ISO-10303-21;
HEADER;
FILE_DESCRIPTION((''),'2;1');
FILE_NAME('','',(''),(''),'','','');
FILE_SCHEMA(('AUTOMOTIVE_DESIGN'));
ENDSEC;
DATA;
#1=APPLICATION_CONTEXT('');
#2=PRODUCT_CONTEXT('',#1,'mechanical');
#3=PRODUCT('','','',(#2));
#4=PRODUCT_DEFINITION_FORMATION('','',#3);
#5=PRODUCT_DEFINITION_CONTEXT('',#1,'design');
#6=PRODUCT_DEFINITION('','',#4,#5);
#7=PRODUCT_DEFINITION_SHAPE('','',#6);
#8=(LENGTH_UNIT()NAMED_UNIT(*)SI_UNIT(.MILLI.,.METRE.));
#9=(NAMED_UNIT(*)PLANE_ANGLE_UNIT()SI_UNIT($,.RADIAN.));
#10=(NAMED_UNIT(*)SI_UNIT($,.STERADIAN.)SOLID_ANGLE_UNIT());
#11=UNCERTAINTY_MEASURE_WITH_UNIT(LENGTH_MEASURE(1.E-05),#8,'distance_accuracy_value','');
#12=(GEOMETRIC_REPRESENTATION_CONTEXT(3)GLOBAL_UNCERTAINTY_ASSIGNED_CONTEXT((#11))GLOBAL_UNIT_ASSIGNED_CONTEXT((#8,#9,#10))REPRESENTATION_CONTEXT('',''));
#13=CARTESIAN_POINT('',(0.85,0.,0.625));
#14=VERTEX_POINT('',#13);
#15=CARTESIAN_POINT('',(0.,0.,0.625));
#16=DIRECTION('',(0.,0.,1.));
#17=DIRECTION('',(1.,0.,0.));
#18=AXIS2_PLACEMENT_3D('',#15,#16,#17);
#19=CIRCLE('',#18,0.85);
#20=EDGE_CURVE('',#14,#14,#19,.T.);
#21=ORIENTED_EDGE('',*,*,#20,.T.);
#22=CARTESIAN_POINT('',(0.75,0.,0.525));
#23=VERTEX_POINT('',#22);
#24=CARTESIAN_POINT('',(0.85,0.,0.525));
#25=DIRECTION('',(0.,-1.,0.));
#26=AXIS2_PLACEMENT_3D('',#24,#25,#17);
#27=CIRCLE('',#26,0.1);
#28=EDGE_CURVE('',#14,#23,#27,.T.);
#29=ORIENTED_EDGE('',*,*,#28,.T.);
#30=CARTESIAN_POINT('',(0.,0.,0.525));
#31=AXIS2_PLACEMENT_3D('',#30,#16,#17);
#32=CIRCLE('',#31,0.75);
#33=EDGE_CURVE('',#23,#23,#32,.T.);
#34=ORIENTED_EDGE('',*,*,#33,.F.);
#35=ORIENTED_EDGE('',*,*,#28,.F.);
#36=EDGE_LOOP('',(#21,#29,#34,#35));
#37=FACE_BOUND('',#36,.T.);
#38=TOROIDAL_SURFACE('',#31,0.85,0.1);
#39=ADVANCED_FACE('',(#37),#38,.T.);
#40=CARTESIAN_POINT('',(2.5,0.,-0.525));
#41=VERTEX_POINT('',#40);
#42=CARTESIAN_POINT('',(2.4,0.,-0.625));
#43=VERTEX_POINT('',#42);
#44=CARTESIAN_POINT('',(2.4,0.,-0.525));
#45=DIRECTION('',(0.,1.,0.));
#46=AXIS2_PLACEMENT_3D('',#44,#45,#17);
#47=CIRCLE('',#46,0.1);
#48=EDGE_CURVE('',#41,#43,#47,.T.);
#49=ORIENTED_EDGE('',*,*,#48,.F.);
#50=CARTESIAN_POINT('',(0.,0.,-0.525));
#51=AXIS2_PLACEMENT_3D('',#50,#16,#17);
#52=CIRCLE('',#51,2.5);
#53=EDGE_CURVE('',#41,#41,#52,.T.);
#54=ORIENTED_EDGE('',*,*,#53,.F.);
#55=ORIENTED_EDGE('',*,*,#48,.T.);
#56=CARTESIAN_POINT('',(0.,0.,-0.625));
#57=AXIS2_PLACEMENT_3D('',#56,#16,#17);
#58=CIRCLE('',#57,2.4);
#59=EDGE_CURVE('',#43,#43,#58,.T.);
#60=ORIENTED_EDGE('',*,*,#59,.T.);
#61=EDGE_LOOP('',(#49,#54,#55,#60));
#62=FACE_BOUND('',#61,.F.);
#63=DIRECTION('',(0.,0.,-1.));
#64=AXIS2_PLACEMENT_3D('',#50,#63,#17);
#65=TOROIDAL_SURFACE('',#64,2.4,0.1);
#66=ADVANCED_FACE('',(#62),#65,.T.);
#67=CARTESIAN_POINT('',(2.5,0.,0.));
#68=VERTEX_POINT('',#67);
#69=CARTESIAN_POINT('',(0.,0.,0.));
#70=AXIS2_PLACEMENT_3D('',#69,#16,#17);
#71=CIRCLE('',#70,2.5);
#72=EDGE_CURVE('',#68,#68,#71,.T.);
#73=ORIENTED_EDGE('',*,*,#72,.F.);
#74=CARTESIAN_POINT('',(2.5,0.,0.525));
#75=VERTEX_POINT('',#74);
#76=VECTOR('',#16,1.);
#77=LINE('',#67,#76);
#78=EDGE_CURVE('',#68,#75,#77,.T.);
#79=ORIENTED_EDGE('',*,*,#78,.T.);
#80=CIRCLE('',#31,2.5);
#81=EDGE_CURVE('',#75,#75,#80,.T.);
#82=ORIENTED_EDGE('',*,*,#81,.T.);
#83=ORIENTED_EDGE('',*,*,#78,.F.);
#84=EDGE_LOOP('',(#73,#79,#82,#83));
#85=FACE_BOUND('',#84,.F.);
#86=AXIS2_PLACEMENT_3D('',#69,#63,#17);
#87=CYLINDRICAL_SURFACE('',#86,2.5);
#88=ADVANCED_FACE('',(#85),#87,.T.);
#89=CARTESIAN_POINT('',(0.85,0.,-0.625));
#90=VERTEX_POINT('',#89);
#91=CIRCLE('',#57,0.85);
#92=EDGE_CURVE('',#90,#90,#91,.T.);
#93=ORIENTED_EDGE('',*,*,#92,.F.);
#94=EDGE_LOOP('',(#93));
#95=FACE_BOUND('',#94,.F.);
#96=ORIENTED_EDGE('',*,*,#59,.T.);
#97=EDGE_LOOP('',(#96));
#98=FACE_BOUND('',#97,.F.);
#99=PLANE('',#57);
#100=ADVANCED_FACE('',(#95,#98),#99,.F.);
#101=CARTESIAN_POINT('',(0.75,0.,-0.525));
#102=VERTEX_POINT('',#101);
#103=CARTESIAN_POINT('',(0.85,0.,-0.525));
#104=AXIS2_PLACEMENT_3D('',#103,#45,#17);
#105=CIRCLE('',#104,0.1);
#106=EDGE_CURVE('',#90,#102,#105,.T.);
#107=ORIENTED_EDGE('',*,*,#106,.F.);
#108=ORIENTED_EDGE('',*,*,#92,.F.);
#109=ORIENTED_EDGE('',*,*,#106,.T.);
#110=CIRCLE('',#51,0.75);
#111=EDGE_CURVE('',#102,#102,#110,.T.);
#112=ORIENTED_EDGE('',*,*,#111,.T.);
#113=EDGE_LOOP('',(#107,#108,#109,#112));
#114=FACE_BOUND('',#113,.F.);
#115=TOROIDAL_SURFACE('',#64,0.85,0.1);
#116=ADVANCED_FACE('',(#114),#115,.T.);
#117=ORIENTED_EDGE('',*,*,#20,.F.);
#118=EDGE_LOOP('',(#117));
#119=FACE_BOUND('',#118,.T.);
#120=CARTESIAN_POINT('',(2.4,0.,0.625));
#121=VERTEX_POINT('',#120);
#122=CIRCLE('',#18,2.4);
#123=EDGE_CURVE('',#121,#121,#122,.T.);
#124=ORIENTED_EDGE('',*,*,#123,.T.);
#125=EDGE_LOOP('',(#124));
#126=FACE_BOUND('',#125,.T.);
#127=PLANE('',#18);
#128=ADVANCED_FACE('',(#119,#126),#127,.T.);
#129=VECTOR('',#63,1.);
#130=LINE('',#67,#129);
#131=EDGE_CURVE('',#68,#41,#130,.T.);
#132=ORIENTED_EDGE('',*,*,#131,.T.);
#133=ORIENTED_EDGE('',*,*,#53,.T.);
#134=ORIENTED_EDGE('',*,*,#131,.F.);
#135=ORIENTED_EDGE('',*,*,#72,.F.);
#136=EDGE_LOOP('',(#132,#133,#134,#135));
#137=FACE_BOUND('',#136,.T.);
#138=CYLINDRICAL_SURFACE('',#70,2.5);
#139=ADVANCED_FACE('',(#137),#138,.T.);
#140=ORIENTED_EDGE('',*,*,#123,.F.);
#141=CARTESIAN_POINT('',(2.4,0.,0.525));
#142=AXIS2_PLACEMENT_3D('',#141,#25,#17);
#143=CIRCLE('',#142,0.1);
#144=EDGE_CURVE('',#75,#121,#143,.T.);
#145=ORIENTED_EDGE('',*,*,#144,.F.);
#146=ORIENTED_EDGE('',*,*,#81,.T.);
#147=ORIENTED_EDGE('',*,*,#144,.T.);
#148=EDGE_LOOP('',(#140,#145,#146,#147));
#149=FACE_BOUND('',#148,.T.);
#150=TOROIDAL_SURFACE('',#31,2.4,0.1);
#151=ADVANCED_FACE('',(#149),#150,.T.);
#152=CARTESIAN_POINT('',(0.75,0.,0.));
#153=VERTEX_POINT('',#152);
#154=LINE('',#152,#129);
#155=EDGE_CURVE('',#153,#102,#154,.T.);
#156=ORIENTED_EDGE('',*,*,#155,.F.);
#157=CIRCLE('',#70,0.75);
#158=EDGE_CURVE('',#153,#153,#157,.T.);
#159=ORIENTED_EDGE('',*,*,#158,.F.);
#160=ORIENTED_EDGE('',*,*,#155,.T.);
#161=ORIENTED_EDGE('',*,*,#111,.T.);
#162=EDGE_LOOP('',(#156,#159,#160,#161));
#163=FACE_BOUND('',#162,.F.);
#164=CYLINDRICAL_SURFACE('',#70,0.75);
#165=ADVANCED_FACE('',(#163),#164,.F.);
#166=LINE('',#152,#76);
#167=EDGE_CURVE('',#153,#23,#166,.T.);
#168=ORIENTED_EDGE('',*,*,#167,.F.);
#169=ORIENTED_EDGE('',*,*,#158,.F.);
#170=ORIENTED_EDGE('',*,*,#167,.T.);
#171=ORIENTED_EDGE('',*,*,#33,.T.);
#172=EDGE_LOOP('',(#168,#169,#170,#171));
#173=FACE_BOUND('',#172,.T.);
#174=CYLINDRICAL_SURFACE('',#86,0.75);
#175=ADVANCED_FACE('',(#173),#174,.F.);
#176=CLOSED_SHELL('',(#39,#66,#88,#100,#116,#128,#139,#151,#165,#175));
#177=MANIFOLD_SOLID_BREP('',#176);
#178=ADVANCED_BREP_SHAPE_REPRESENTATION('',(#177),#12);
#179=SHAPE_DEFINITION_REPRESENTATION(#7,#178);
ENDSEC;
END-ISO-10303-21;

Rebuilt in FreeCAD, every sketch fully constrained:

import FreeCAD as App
import Part
import Sketcher
from FreeCAD import Vector
Q = App.Units.Quantity


def edges_at(feature, points):
    """Names of the edges that pass closest to the given points."""
    edges = feature.Shape.Edges
    near = lambda p: min(range(len(edges)), key=lambda i: edges[i].distToShape(Part.Vertex(*p))[0])
    return sorted({f"Edge{near(p) + 1}" for p in points})

doc = App.newDocument("Part")
params = doc.addObject("Spreadsheet::Sheet", "Params")
for row, (alias, value) in enumerate([
    ("sketch1_diameter", "5 mm"),
    ("sketch1_diameter2", "1.5 mm"),
    ("pad1_length", "1.25 mm"),
    ("fillet_radius", "0.1 mm"),
], start=1):
    params.set(f"A{row}", alias)
    params.set(f"B{row}", "=" + value)
    params.setAlias(f"B{row}", alias)

body = doc.addObject("PartDesign::Body", "Body")

sketch1 = body.newObject("Sketcher::SketchObject", "Sketch")
sketch1.AttachmentSupport = (doc.getObject("XY_Plane"), [""])
sketch1.MapMode = "FlatFace"
sketch1.addGeometry(Part.Circle(Vector(0, 0, 0), Vector(0, 0, 1), 2.5), False)
sketch1.addGeometry(Part.Circle(Vector(0, 0, 0), Vector(0, 0, 1), 0.75), False)
sketch1.addConstraint(Sketcher.Constraint("Coincident", 0, 3, -1, 1))
sketch1.addConstraint(Sketcher.Constraint("Coincident", 1, 3, -1, 1))
sketch1.addConstraint(Sketcher.Constraint("Diameter", 0, Q("5 mm")))
sketch1.addConstraint(Sketcher.Constraint("Diameter", 1, Q("1.5 mm")))
sketch1.setExpression("Constraints[2]", "Params.sketch1_diameter")
sketch1.setExpression("Constraints[3]", "Params.sketch1_diameter2")
pad1 = body.newObject("PartDesign::Pad", "Pad")
pad1.Profile = sketch1
pad1.setExpression("Length", "Params.pad1_length")
pad1.Midplane = True
doc.recompute()

fillet = body.newObject("PartDesign::Fillet", "Fillet")
fillet.Base = (pad1, edges_at(pad1, [
    (-2.5, 0, 0.625),
    (-2.5, 0, -0.625),
    (-0.75, 0, 0.625),
    (-0.75, 0, -0.625),
]))
fillet.setExpression("Radius", "Params.fillet_radius")

doc.recompute()
